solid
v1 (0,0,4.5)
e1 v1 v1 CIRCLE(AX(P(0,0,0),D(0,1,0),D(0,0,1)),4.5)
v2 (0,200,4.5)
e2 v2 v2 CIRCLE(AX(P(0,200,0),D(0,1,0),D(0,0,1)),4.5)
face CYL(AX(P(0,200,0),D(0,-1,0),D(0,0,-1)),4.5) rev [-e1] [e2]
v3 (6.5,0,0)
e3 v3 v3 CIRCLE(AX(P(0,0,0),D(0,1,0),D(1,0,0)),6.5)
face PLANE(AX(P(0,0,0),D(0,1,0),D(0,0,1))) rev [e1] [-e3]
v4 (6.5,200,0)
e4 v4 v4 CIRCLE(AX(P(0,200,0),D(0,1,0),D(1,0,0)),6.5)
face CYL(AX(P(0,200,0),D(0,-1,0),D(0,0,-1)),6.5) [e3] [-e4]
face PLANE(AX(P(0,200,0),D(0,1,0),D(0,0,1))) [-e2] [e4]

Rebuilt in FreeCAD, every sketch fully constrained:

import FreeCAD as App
import Part
import Sketcher
from FreeCAD import Vector
Q = App.Units.Quantity

doc = App.newDocument("Part")
body = doc.addObject("PartDesign::Body", "Body")

# Sketch on XZ plane
sketch1 = body.newObject("Sketcher::SketchObject", "Sketch")
sketch1.AttachmentSupport = (doc.getObject("XZ_Plane"), [""])
sketch1.MapMode = "FlatFace"
sketch1.addGeometry(Part.Circle(Vector(0, 0, 0), Vector(0, 0, 1), 6.5), False)
sketch1.addGeometry(Part.Circle(Vector(0, 0, 0), Vector(0, 0, 1), 4.5), False)
sketch1.addConstraint(Sketcher.Constraint("Coincident", 0, 3, -1, 1))
sketch1.addConstraint(Sketcher.Constraint("Coincident", 1, 3, -1, 1))
sketch1.addConstraint(Sketcher.Constraint("Diameter", 0, Q("13 mm")))
sketch1.addConstraint(Sketcher.Constraint("Diameter", 1, Q("9 mm")))
pad1 = body.newObject("PartDesign::Pad", "Pad")
pad1.Profile = sketch1
pad1.Length = 200
pad1.Reversed = True

doc.recompute()
